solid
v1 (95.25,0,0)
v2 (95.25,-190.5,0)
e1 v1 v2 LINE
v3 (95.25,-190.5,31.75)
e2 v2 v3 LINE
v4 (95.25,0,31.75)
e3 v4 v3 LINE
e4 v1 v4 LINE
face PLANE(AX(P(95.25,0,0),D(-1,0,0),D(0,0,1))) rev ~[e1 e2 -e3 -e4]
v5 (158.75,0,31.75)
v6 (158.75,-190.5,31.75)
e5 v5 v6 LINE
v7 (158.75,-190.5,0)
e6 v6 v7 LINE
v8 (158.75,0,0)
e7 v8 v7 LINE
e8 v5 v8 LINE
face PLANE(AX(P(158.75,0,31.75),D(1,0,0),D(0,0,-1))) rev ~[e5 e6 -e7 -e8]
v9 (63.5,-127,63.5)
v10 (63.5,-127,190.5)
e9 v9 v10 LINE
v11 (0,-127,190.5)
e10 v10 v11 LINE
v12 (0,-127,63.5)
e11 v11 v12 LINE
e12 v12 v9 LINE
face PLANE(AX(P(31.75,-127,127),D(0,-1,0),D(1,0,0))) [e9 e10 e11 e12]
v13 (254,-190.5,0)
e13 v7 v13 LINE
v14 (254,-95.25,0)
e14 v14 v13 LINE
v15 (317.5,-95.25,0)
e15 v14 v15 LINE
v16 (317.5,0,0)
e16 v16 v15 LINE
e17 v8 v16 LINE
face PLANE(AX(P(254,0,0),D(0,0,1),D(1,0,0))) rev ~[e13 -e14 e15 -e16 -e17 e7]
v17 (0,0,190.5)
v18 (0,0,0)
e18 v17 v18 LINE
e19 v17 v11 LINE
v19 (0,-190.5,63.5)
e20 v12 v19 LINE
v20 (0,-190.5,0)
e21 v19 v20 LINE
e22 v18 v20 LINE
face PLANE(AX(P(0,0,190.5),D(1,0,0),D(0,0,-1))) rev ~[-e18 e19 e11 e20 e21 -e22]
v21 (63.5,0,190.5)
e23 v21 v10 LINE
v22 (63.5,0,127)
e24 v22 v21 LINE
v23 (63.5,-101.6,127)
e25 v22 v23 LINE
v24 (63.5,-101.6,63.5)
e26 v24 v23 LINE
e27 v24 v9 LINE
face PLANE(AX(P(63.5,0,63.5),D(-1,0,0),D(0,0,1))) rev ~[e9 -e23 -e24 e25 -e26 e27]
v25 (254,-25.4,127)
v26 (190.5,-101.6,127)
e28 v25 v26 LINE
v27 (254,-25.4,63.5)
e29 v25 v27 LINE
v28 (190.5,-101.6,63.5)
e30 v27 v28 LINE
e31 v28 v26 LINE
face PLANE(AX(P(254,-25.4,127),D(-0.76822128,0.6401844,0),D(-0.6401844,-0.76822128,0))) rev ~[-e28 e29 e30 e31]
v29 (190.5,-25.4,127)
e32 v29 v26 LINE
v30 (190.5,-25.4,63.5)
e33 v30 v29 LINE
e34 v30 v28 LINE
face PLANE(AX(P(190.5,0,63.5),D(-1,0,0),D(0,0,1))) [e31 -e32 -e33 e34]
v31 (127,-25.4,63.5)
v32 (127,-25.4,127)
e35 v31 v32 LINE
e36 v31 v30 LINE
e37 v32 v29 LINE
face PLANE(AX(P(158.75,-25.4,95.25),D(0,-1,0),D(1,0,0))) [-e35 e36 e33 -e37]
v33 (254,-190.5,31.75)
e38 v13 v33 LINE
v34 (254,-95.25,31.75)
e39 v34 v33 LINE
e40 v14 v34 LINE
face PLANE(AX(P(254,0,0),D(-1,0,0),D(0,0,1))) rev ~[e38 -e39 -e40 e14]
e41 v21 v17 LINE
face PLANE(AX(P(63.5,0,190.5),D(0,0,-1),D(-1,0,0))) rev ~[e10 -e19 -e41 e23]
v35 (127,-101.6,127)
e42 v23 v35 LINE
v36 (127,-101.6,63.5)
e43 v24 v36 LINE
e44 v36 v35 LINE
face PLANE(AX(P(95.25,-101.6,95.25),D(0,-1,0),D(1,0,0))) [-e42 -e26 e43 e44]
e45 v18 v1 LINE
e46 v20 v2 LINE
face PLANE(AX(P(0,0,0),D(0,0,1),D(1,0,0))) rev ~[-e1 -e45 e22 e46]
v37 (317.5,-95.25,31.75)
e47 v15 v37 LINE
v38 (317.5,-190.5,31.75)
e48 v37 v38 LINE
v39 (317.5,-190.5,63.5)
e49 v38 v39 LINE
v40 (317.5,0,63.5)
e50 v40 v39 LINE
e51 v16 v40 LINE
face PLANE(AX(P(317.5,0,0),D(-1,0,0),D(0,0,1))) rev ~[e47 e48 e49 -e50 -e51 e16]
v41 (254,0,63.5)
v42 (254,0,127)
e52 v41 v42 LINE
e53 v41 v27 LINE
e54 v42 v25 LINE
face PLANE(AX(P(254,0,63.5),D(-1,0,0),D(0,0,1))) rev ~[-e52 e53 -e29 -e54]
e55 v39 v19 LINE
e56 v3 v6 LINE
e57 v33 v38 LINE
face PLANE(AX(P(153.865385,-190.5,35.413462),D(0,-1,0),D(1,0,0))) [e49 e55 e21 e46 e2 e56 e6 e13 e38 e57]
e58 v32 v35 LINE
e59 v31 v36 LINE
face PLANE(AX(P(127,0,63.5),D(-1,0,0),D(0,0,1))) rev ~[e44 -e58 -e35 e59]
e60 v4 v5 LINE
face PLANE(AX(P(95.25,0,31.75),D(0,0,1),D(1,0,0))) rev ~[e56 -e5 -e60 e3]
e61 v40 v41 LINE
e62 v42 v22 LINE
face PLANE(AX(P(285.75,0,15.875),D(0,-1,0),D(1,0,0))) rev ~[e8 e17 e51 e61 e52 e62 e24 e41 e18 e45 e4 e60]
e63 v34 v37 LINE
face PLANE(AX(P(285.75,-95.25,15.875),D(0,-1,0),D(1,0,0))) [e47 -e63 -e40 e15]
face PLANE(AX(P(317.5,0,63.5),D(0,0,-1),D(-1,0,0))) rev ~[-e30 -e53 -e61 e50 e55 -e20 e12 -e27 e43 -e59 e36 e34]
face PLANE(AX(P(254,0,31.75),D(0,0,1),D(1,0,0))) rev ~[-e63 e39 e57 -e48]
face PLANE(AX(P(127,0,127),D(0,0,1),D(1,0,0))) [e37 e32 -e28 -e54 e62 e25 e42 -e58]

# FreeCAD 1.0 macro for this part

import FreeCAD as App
import Part
import Sketcher
from FreeCAD import Vector
Q = App.Units.Quantity


def add_polygon(sketch, points):
    """Adds a closed chain of lines whose ends are joined by coincident constraints."""
    first, n = sketch.GeometryCount, len(points)
    for a, b in zip(points, points[1:] + points[:1]):
        sketch.addGeometry(Part.LineSegment(App.Vector(*a, 0), App.Vector(*b, 0)), False)
    for i in range(n):
        sketch.addConstraint(Sketcher.Constraint("Coincident", first + i, 2, first + (i + 1) % n, 1))

doc = App.newDocument("Part")
body = doc.addObject("PartDesign::Body", "Body")

# Sketch on XZ plane
sketch1 = doc.addObject("Sketcher::SketchObject", "Sketch")
body.addObject(sketch1)
sketch1.AttachmentSupport = (doc.XZ_Plane, [""])
sketch1.MapMode = "FlatFace"
add_polygon(sketch1, [(0, 64), (0, 0), (95, 0), (95, 32), (159, 32), (159, 0), (254, 0), (254, 32), (318, 32), (318, 64)])  # lines 0-9
sketch1.addConstraint([
    Sketcher.Constraint("Vertical", 0),
    Sketcher.Constraint("Horizontal", 1),
    Sketcher.Constraint("Vertical", 2),
    Sketcher.Constraint("Horizontal", 3),
    Sketcher.Constraint("Vertical", 4),
    Sketcher.Constraint("Horizontal", 5),
    Sketcher.Constraint("Vertical", 6),
    Sketcher.Constraint("Horizontal", 7),
    Sketcher.Constraint("Vertical", 8),
    Sketcher.Constraint("Horizontal", 9),
    Sketcher.Constraint("Coincident", 0, 2, -1, 1),
    Sketcher.Constraint("PointOnObject", 4, 2, -1),
    Sketcher.Constraint("Horizontal", 3, 2, 6, 2),
    Sketcher.Constraint("Equal", 1, 5),
    Sketcher.Constraint("Equal", 3, 7),
    Sketcher.Constraint("Equal", 7, 0),
    Sketcher.Constraint("Equal", 6, 8),
    Sketcher.Constraint("DistanceX", 3, 1, 3, 2, Q("2.5 in")),
    Sketcher.Constraint("DistanceX", 9, 2, 9, 1, Q("12.5 in")),
])
pad1 = doc.addObject("PartDesign::Pad", "Pad")
body.addObject(pad1)
pad1.Profile = sketch1
pad1.Length = Q("7.5 in")

# Sketch on XZ plane
sketch2 = doc.addObject("Sketcher::SketchObject", "Sketch001")
body.addObject(sketch2)
sketch2.AttachmentSupport = (doc.XZ_Plane, [""])
sketch2.MapMode = "FlatFace"
add_polygon(sketch2, [(0, 190), (0, 64), (64, 64), (64, 190)])  # lines 0-3
sketch2.addConstraint([
    Sketcher.Constraint("Vertical", 0),
    Sketcher.Constraint("Horizontal", 1),
    Sketcher.Constraint("Vertical", 2),
    Sketcher.Constraint("Horizontal", 3),
    Sketcher.Constraint("PointOnObject", 0, 2, -2),
    Sketcher.Constraint("DistanceY", 0, 2, 0, 1, Q("5 in")),
    Sketcher.Constraint("DistanceX", 1, 1, 1, 2, Q("2.5 in")),
    Sketcher.Constraint("DistanceY", -1, 1, 0, 2, Q("2.5 in")),
])
pad2 = doc.addObject("PartDesign::Pad", "Pad001")
body.addObject(pad2)
pad2.Profile = sketch2
pad2.Length = Q("5 in")

# Sketch on XZ plane
sketch3 = doc.addObject("Sketcher::SketchObject", "Sketch002")
body.addObject(sketch3)
sketch3.AttachmentSupport = (doc.XZ_Plane, [""])
sketch3.MapMode = "FlatFace"
add_polygon(sketch3, [(64, 127), (64, 64), (127, 64), (127, 127)])  # lines 0-3
add_polygon(sketch3, [(190, 127), (190, 64), (254, 64), (254, 127)])  # lines 4-7
sketch3.addConstraint([
    Sketcher.Constraint("Vertical", 0),
    Sketcher.Constraint("Horizontal", 1),
    Sketcher.Constraint("Vertical", 2),
    Sketcher.Constraint("Horizontal", 3),
    Sketcher.Constraint("Vertical", 4),
    Sketcher.Constraint("Horizontal", 5),
    Sketcher.Constraint("Vertical", 6),
    Sketcher.Constraint("Horizontal", 7),
    Sketcher.Constraint("Horizontal", 1, 2, 4, 2),
    Sketcher.Constraint("Horizontal", 3, 2, 6, 2),
    Sketcher.Constraint("Equal", 3, 5),
    Sketcher.Constraint("Equal", 7, 0),
    Sketcher.Constraint("DistanceX", 1, 1, 1, 2, Q("2.5 in")),
    Sketcher.Constraint("DistanceX", -1, 1, 1, 2, Q("5 in")),
    Sketcher.Constraint("DistanceY", -1, 1, 2, 2, Q("5 in")),
    Sketcher.Constraint("DistanceX", -1, 1, 5, 2, Q("10 in")),
])
pad3 = doc.addObject("PartDesign::Pad", "Pad002")
body.addObject(pad3)
pad3.Profile = sketch3
pad3.Length = Q("4 in")

# Sketch on XZ plane
sketch4 = doc.addObject("Sketcher::SketchObject", "Sketch003")
body.addObject(sketch4)
sketch4.AttachmentSupport = (doc.XZ_Plane, [""])
sketch4.MapMode = "FlatFace"
add_polygon(sketch4, [(127, 127), (127, 64), (190, 64), (190, 127)])  # lines 0-3
sketch4.addConstraint([
    Sketcher.Constraint("Vertical", 0),
    Sketcher.Constraint("Horizontal", 1),
    Sketcher.Constraint("Vertical", 2),
    Sketcher.Constraint("Horizontal", 3),
    Sketcher.Constraint("Equal", 3, 0),
    Sketcher.Constraint("DistanceX", 1, 1, 1, 2, Q("2.5 in")),
    Sketcher.Constraint("DistanceX", -1, 1, 0, 2, Q("5 in")),
    Sketcher.Constraint("DistanceY", -1, 1, 2, 2, Q("5 in")),
])
pad4 = doc.addObject("PartDesign::Pad", "Pad003")
body.addObject(pad4)
pad4.Profile = sketch4
pad4.Length = Q("1 in")

# Sketch on XZ plane
sketch5 = doc.addObject("Sketcher::SketchObject", "Sketch004")
body.addObject(sketch5)
sketch5.AttachmentSupport = (doc.XZ_Plane, [""])
sketch5.MapMode = "FlatFace"
add_polygon(sketch5, [(254, 32), (254, 0), (318, 0), (318, 32)])  # lines 0-3
sketch5.addConstraint([
    Sketcher.Constraint("Vertical", 0),
    Sketcher.Constraint("Horizontal", 1),
    Sketcher.Constraint("Vertical", 2),
    Sketcher.Constraint("Horizontal", 3),
    Sketcher.Constraint("PointOnObject", 0, 2, -1),
    Sketcher.Constraint("DistanceX", 1, 1, 1, 2, Q("2.5 in")),
    Sketcher.Constraint("DistanceX", -1, 1, 0, 2, Q("10 in")),
    Sketcher.Constraint("DistanceY", 0, 2, 0, 1, Q("1.25 in")),
])
pad5 = doc.addObject("PartDesign::Pad", "Pad004")
body.addObject(pad5)
pad5.Profile = sketch5
pad5.Length = Q("3.75 in")

# Sketch on XY plane
sketch6 = doc.addObject("Sketcher::SketchObject", "Sketch005")
body.addObject(sketch6)
sketch6.AttachmentSupport = (doc.XY_Plane, [""])
sketch6.MapMode = "FlatFace"
sketch6.AttachmentOffset = App.Placement(Vector(0, 0, 5 * 25.4), App.Rotation())
add_polygon(sketch6, [(254, -25), (190, -102), (254, -102)])  # lines 0-2
sketch6.addConstraint([
    Sketcher.Constraint("Horizontal", 1),
    Sketcher.Constraint("Vertical", 2),
    Sketcher.Constraint("DistanceY", 2, 1, 2, 2, Q("3 in")),
    Sketcher.Constraint("DistanceX", 1, 1, 1, 2, Q("2.5 in")),
    Sketcher.Constraint("DistanceY", 0, 2, -1, 1, Q("4 in")),
    Sketcher.Constraint("DistanceX", -1, 1, 1, 2, Q("10 in")),
])
pocket1 = doc.addObject("PartDesign::Pocket", "Pocket")
body.addObject(pocket1)
pocket1.Profile = sketch6
pocket1.Length = Q("2.5 in")

doc.recompute()
